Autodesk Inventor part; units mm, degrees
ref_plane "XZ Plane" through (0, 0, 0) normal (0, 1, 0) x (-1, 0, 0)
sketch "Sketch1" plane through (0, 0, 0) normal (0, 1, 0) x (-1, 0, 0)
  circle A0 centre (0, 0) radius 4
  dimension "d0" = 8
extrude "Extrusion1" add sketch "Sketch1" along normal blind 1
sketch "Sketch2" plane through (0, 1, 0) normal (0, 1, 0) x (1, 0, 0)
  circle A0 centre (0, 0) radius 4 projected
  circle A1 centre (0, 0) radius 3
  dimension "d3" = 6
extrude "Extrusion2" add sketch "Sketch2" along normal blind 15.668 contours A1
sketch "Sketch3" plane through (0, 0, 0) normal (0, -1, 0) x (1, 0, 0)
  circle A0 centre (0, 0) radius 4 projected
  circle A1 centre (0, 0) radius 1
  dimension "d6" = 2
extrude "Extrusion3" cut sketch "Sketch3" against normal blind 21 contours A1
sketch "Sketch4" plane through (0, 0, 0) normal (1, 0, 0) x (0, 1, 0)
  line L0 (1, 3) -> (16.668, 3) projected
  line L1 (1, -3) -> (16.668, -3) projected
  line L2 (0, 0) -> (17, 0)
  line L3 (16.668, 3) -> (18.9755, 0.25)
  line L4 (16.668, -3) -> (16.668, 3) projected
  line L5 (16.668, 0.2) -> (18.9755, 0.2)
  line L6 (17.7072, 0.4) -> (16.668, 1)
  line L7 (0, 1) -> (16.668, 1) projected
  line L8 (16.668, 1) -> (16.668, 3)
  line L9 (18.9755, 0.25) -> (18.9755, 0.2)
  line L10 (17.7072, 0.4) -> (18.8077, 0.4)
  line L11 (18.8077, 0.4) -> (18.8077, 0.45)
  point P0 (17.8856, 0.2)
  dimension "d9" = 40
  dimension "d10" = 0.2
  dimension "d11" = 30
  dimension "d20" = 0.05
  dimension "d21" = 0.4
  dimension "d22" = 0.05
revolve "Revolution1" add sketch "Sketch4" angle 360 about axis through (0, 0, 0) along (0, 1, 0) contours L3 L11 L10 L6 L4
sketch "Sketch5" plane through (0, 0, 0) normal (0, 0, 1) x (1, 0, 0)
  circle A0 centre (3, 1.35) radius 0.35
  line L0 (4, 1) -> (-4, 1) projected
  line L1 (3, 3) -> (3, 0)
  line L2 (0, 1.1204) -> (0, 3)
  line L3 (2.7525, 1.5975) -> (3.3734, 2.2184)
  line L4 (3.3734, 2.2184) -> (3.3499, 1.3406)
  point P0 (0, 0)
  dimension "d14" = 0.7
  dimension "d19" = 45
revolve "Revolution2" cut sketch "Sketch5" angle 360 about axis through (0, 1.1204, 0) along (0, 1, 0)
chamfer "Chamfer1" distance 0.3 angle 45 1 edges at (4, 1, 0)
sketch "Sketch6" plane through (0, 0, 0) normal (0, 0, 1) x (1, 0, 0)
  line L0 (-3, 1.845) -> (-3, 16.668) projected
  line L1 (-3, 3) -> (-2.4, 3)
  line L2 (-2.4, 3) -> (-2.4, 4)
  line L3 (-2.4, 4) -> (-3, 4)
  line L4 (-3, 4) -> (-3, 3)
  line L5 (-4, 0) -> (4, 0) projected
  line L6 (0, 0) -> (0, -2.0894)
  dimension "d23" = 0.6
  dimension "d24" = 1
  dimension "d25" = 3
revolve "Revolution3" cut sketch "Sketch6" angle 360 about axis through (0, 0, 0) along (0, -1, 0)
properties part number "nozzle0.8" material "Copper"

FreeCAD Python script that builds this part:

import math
import FreeCAD as App
import Part
import Sketcher

V = App.Vector
Q = App.Units.Quantity


def edges_at(feature, points):
    """Names of the edges that pass closest to the given points."""
    edges = feature.Shape.Edges
    near = lambda p: min(range(len(edges)), key=lambda i: edges[i].distToShape(Part.Vertex(*p))[0])
    return sorted({f"Edge{near(p) + 1}" for p in points})

doc = App.newDocument("Part")
body = doc.addObject("PartDesign::Body", "Body")

# Sketch on XZ plane
sketch1 = doc.addObject("Sketcher::SketchObject", "Sketch")
body.addObject(sketch1)
sketch1.AttachmentSupport = (doc.XZ_Plane, [""])
sketch1.MapMode = "FlatFace"
sketch1.addGeometry(Part.Circle(V(0, 0, 0), V(0, 0, 1), 4), False)
sketch1.addConstraint([
    Sketcher.Constraint("Coincident", 0, 3, -1, 1),
    Sketcher.Constraint("Diameter", 0, Q("8 mm")),
])
pad1 = doc.addObject("PartDesign::Pad", "Pad")
body.addObject(pad1)
pad1.Profile = sketch1
pad1.Length = 1
pad1.Reversed = True

# Sketch on XZ plane
sketch2 = doc.addObject("Sketcher::SketchObject", "Sketch001")
body.addObject(sketch2)
sketch2.AttachmentSupport = (doc.XZ_Plane, [""])
sketch2.MapMode = "FlatFace"
sketch2.AttachmentOffset = App.Placement(V(0, 0, -1), App.Rotation())
sketch2.addGeometry(Part.Circle(V(0, 0, 0), V(0, 0, 1), 3), False)
sketch2.addConstraint([
    Sketcher.Constraint("Coincident", 0, 3, -1, 1),
    Sketcher.Constraint("Diameter", 0, Q("6 mm")),
])
pad2 = doc.addObject("PartDesign::Pad", "Pad001")
body.addObject(pad2)
pad2.Profile = sketch2
pad2.Length = 15.668
pad2.Reversed = True

# Sketch on XZ plane
sketch3 = doc.addObject("Sketcher::SketchObject", "Sketch002")
body.addObject(sketch3)
sketch3.AttachmentSupport = (doc.XZ_Plane, [""])
sketch3.MapMode = "FlatFace"
sketch3.addGeometry(Part.Circle(V(0, 0, 0), V(0, 0, 1), 1), False)
sketch3.addConstraint([
    Sketcher.Constraint("Coincident", 0, 3, -1, 1),
    Sketcher.Constraint("Diameter", 0, Q("2 mm")),
])
pocket1 = doc.addObject("PartDesign::Pocket", "Pocket")
body.addObject(pocket1)
pocket1.Profile = sketch3
pocket1.Length = 21

# Sketch on YZ plane
sketch4 = doc.addObject("Sketcher::SketchObject", "Sketch003")
body.addObject(sketch4)
sketch4.AttachmentSupport = (doc.YZ_Plane, [""])
sketch4.MapMode = "FlatFace"
sketch4.addGeometry([
    Part.LineSegment(V(18.81, 0.45, 0), V(16.67, 3, 0)),  # 0
    Part.LineSegment(V(16.67, 3, 0), V(16.67, 1, 0)),  # 1
    Part.LineSegment(V(16.67, 1, 0), V(17.71, 0.4, 0)),  # 2
    Part.LineSegment(V(17.71, 0.4, 0), V(18.81, 0.4, 0)),  # 3
    Part.LineSegment(V(18.81, 0.4, 0), V(18.81, 0.45, 0)),  # 4
], False)
sketch4.addConstraint([
    Sketcher.Constraint("Coincident", 0, 2, 1, 1),
    Sketcher.Constraint("Coincident", 1, 2, 2, 1),
    Sketcher.Constraint("Coincident", 2, 2, 3, 1),
    Sketcher.Constraint("Coincident", 3, 2, 4, 1),
    Sketcher.Constraint("Coincident", 4, 2, 0, 1),
    Sketcher.Constraint("Vertical", 1),
    Sketcher.Constraint("Horizontal", 3),
    Sketcher.Constraint("Vertical", 4),
    Sketcher.Constraint("DistanceY", 4, 1, 4, 2, Q("0.05 mm")),
    Sketcher.Constraint("DistanceY", -1, 1, 2, 2, Q("0.4 mm")),
    Sketcher.Constraint("DistanceY", 1, 2, 1, 1, Q("2 mm")),
    Sketcher.Constraint("Angle", 0, Q("129.9997 deg")),
    Sketcher.Constraint("Angle", 2, Q("-30.0007 deg")),
    Sketcher.Constraint("DistanceY", -1, 1, 0, 2, Q("3 mm")),
    Sketcher.Constraint("DistanceX", -1, 1, 0, 2, Q("16.668 mm")),
])
revolution = doc.addObject("PartDesign::Revolution", "Revolution")
body.addObject(revolution)
revolution.Profile = sketch4
revolution.ReferenceAxis = (sketch4, ["H_Axis"])
revolution.Angle = 360

# Sketch on XY plane
sketch5 = doc.addObject("Sketcher::SketchObject", "Sketch004")
body.addObject(sketch5)
sketch5.AttachmentSupport = (doc.XY_Plane, [""])
sketch5.MapMode = "FlatFace"
sketch5.addGeometry([
    Part.LineSegment(V(3.35, 1.35, 0), V(3.37, 2.22, 0)),
    Part.LineSegment(V(3.37, 2.22, 0), V(2.75, 1.6, 0)),
    Part.ArcOfCircle(Part.Circle(V(3, 1.35, 0), V(0, 0, 1), 0.35), math.radians(135), math.radians(360)),
], False)
sketch5.addConstraint([
    Sketcher.Constraint("Coincident", 0, 2, 1, 1),
    Sketcher.Constraint("Tangent", 1, 2, 2, 1),
    Sketcher.Constraint("Coincident", 2, 2, 0, 1),
    Sketcher.Constraint("Radius", 2, Q("0.35 mm")),
    Sketcher.Constraint("Angle", 1, Q("-135 deg")),
    Sketcher.Constraint("DistanceX", -1, 1, 2, 3, Q("3 mm")),
    Sketcher.Constraint("DistanceY", -1, 1, 2, 3, Q("1.35 mm")),
    Sketcher.Constraint("DistanceY", -1, 1, 2, 2, Q("1.35 mm")),
    Sketcher.Constraint("Distance", 1, Q("0.878 mm")),
])
groove = doc.addObject("PartDesign::Groove", "Groove")
body.addObject(groove)
groove.Profile = sketch5
groove.ReferenceAxis = (sketch5, ["V_Axis"])
groove.Angle = 360
doc.recompute()

chamfer = doc.addObject("PartDesign::Chamfer", "Chamfer")
body.addObject(chamfer)
chamfer.Base = (groove, edges_at(groove, [(4, 1, 0)]))
chamfer.Size = 0.3

# Sketch on XY plane
sketch6 = doc.addObject("Sketcher::SketchObject", "Sketch005")
body.addObject(sketch6)
sketch6.AttachmentSupport = (doc.XY_Plane, [""])
sketch6.MapMode = "FlatFace"
sketch6.addGeometry([
    Part.LineSegment(V(-3, 4, 0), V(-3, 3, 0)),
    Part.LineSegment(V(-3, 3, 0), V(-2.4, 3, 0)),
    Part.LineSegment(V(-2.4, 3, 0), V(-2.4, 4, 0)),
    Part.LineSegment(V(-2.4, 4, 0), V(-3, 4, 0)),
], False)
sketch6.addConstraint([
    Sketcher.Constraint("Coincident", 0, 2, 1, 1),
    Sketcher.Constraint("Coincident", 1, 2, 2, 1),
    Sketcher.Constraint("Coincident", 2, 2, 3, 1),
    Sketcher.Constraint("Coincident", 3, 2, 0, 1),
    Sketcher.Constraint("Vertical", 0),
    Sketcher.Constraint("Horizontal", 1),
    Sketcher.Constraint("Vertical", 2),
    Sketcher.Constraint("Horizontal", 3),
    Sketcher.Constraint("DistanceY", 0, 2, 0, 1, Q("1 mm")),
    Sketcher.Constraint("DistanceX", 1, 1, 1, 2, Q("0.6 mm")),
    Sketcher.Constraint("DistanceX", 0, 2, -1, 1, Q("3 mm")),
    Sketcher.Constraint("DistanceY", -1, 1, 0, 2, Q("3 mm")),
])
groove2 = doc.addObject("PartDesign::Groove", "Groove001")
body.addObject(groove2)
groove2.Profile = sketch6
groove2.ReferenceAxis = (sketch6, ["V_Axis"])
groove2.Angle = 360

doc.recompute()
